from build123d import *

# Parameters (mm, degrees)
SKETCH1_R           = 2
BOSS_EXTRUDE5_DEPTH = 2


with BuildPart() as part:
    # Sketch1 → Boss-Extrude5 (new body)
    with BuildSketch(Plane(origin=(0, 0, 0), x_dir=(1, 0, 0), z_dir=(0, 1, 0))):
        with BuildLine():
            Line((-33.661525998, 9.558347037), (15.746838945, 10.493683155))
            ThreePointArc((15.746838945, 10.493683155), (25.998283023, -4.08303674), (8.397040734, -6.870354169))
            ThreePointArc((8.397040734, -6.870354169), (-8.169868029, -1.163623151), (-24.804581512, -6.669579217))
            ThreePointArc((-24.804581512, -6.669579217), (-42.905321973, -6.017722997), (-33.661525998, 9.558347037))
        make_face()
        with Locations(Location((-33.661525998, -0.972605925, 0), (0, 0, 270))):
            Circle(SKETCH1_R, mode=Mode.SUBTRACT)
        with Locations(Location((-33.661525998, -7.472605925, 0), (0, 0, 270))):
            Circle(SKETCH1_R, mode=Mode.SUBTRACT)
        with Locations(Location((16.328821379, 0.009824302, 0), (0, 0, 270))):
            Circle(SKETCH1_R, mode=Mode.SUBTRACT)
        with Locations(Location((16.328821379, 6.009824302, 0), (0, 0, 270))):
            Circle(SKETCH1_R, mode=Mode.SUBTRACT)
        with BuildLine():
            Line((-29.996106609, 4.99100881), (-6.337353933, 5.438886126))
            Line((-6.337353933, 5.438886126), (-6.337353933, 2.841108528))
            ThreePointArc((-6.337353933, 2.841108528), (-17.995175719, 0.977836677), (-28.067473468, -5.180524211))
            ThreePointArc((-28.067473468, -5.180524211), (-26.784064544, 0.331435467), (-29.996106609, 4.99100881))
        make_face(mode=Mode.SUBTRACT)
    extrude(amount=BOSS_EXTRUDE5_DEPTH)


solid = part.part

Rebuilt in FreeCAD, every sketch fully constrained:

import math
import FreeCAD as App
import Part
import Sketcher

V = App.Vector
Q = App.Units.Quantity

doc = App.newDocument("Part")
params = doc.addObject("Spreadsheet::Sheet", "Params")
for row, (alias, value) in enumerate([
    ("sketch1_diameter", "4 mm"),
    ("sketch1_radius", "7 mm"),
    ("sketch1_radius2", "10.5 mm"),
    ("pad1_length", "2 mm"),
], start=1):
    params.set(f"A{row}", alias)
    params.set(f"B{row}", "=" + value)
    params.setAlias(f"B{row}", alias)

body = doc.addObject("PartDesign::Body", "Body")

# Sketch on XZ plane
sketch1 = body.newObject("Sketcher::SketchObject", "Sketch")
sketch1.AttachmentSupport = (doc.getObject("XZ_Plane"), [""])
sketch1.MapMode = "FlatFace"
sketch1.addGeometry(Part.LineSegment(V(15.746839, -10.493683, 0), V(-33.661526, -9.558347, 0)), False)
sketch1.addGeometry(Part.ArcOfCircle(Part.Circle(V(-33.661526, 0.972606, 0), V(0, 0, 1), 10.530953), math.radians(32.749978), math.radians(270)), False)
sketch1.addGeometry(Part.ArcOfCircle(Part.Circle(V(-8.335447, 28.544929, 0), V(0, 0, 1), 27.381807), math.radians(-126.974726), math.radians(-52.332331)), False)
sketch1.addGeometry(Part.ArcOfCircle(Part.Circle(V(16.328821, -0.009824, 0), V(0, 0, 1), 10.5), math.radians(-93.177356), math.radians(139.061005)), False)
sketch1.addGeometry(Part.Circle(V(-33.661526, 7.472606, 0), V(0, 0, 1), 2), False)
sketch1.addGeometry(Part.Circle(V(-33.661526, 0.972606, 0), V(0, 0, 1), 2), False)
sketch1.addGeometry(Part.Circle(V(16.328821, -0.009824, 0), V(0, 0, 1), 2), False)
sketch1.addGeometry(Part.Circle(V(16.328821, -6.009824, 0), V(0, 0, 1), 2), False)
sketch1.addGeometry(Part.LineSegment(V(-29.996107, -4.991009, 0), V(-6.337354, -5.438886, 0)), False)
sketch1.addGeometry(Part.LineSegment(V(-6.337354, -5.438886, 0), V(-6.337354, -2.841109, 0)), False)
sketch1.addGeometry(Part.ArcOfCircle(Part.Circle(V(-7.452844, 27.580703, 0), V(0, 0, 1), 30.442256), math.radians(-132.62301), math.radians(-87.90005)), False)
sketch1.addGeometry(Part.ArcOfCircle(Part.Circle(V(-33.661526, 0.972606, 0), V(0, 0, 1), 7), math.radians(-58.423849), math.radians(36.950956)), False)
sketch1.addConstraint(Sketcher.Constraint("Coincident", 0, 2, 1, 2))
sketch1.addConstraint(Sketcher.Constraint("Coincident", 1, 1, 2, 1))
sketch1.addConstraint(Sketcher.Constraint("Coincident", 2, 2, 3, 2))
sketch1.addConstraint(Sketcher.Constraint("Coincident", 3, 1, 0, 1))
sketch1.addConstraint(Sketcher.Constraint("Coincident", 8, 2, 9, 1))
sketch1.addConstraint(Sketcher.Constraint("Coincident", 9, 2, 10, 2))
sketch1.addConstraint(Sketcher.Constraint("Coincident", 10, 1, 11, 2))
sketch1.addConstraint(Sketcher.Constraint("Coincident", 11, 1, 8, 1))
sketch1.addConstraint(Sketcher.Constraint("Vertical", 9))
sketch1.addConstraint(Sketcher.Constraint("Coincident", 5, 3, 1, 3))
sketch1.addConstraint(Sketcher.Constraint("Coincident", 6, 3, 3, 3))
sketch1.addConstraint(Sketcher.Constraint("Coincident", 11, 3, 1, 3))
sketch1.addConstraint(Sketcher.Constraint("Equal", 4, 5))
sketch1.addConstraint(Sketcher.Constraint("Equal", 5, 6))
sketch1.addConstraint(Sketcher.Constraint("Equal", 6, 7))
sketch1.addConstraint(Sketcher.Constraint("Parallel", 0, 8))
sketch1.addConstraint(Sketcher.Constraint("Vertical", 1, 3, 4, 3))
sketch1.addConstraint(Sketcher.Constraint("Vertical", 6, 3, 7, 3))
sketch1.addConstraint(Sketcher.Constraint("Vertical", 11, 3, 0, 2))
sketch1.addConstraint(Sketcher.Constraint("Diameter", 4, Q("4 mm")))
sketch1.addConstraint(Sketcher.Constraint("Radius", 11, Q("7 mm")))
sketch1.addConstraint(Sketcher.Constraint("Radius", 3, Q("10.5 mm")))
sketch1.addConstraint(Sketcher.Constraint("DistanceY", 7, 3, 3, 3, Q("6 mm")))
sketch1.addConstraint(Sketcher.Constraint("DistanceY", 1, 3, 4, 3, Q("6.5 mm")))
sketch1.addConstraint(Sketcher.Constraint("Radius", 1, Q("10.530953 mm")))
sketch1.addConstraint(Sketcher.Constraint("Radius", 2, Q("27.381807 mm")))
sketch1.addConstraint(Sketcher.Constraint("Radius", 10, Q("30.442256 mm")))
sketch1.addConstraint(Sketcher.Constraint("DistanceX", 2, 2, 3, 1, Q("7.349798 mm")))
sketch1.addConstraint(Sketcher.Constraint("Distance", 8, Q("23.662992 mm")))
sketch1.addConstraint(Sketcher.Constraint("DistanceY", 9, 1, 9, 2, Q("2.597778 mm")))
sketch1.addConstraint(Sketcher.Constraint("DistanceY", -1, 1, 2, 3, Q("28.544929 mm")))
sketch1.addConstraint(Sketcher.Constraint("DistanceX", -1, 1, 3, 3, Q("16.328821 mm")))
sketch1.addConstraint(Sketcher.Constraint("DistanceX", 1, 1, -1, 1, Q("24.804582 mm")))
sketch1.addConstraint(Sketcher.Constraint("DistanceY", -1, 1, 1, 1, Q("6.669579 mm")))
sketch1.addConstraint(Sketcher.Constraint("DistanceX", -1, 1, 2, 2, Q("8.397041 mm")))
sketch1.addConstraint(Sketcher.Constraint("DistanceY", 9, 2, -1, 1, Q("2.841109 mm")))
sketch1.addConstraint(Sketcher.Constraint("DistanceY", 11, 1, -1, 1, Q("4.991009 mm")))
sketch1.addConstraint(Sketcher.Constraint("DistanceX", 4, 3, 10, 3, Q("26.208682 mm")))
sketch1.setExpression("Constraints[19]", "Params.sketch1_diameter")
sketch1.setExpression("Constraints[20]", "Params.sketch1_radius")
sketch1.setExpression("Constraints[21]", "Params.sketch1_radius2")
pad1 = body.newObject("PartDesign::Pad", "Pad")
pad1.Profile = sketch1
pad1.setExpression("Length", "Params.pad1_length")
pad1.Reversed = True

doc.recompute()
